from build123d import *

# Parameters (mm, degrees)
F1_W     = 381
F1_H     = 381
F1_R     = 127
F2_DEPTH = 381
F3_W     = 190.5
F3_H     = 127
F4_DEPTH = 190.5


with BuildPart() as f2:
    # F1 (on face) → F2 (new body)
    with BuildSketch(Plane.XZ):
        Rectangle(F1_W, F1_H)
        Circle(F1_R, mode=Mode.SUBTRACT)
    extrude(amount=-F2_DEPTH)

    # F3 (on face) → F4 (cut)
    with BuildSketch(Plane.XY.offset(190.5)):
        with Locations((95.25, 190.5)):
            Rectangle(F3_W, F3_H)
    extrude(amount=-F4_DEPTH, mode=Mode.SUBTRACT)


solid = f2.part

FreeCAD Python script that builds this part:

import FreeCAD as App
import Part
import Sketcher
Q = App.Units.Quantity

doc = App.newDocument("Part")
body = doc.addObject("PartDesign::Body", "Body")

sketch1 = body.newObject("Sketcher::SketchObject", "Sketch")
sketch1.AttachmentSupport = (doc.getObject("XZ_Plane"), [""])
sketch1.MapMode = "FlatFace"
sketch1.addGeometry([
    Part.LineSegment(App.Vector(-190, 190, 0), App.Vector(-190, -190, 0)),
    Part.LineSegment(App.Vector(-190, -190, 0), App.Vector(190, -190, 0)),
    Part.LineSegment(App.Vector(190, -190, 0), App.Vector(190, 190, 0)),
    Part.LineSegment(App.Vector(190, 190, 0), App.Vector(-190, 190, 0)),
    Part.Circle(App.Vector(0, 0, 0), App.Vector(0, 0, 1), 127),
], False)
sketch1.addConstraint([
    Sketcher.Constraint("Coincident", 0, 2, 1, 1),
    Sketcher.Constraint("Coincident", 1, 2, 2, 1),
    Sketcher.Constraint("Coincident", 2, 2, 3, 1),
    Sketcher.Constraint("Coincident", 3, 2, 0, 1),
    Sketcher.Constraint("Vertical", 0),
    Sketcher.Constraint("Horizontal", 1),
    Sketcher.Constraint("Vertical", 2),
    Sketcher.Constraint("Horizontal", 3),
    Sketcher.Constraint("Coincident", 4, 3, -1, 1),
    Sketcher.Constraint("Symmetric", 0, 2, 2, 2, -1, 1),
    Sketcher.Constraint("Equal", 3, 0),
    Sketcher.Constraint("Diameter", 4, Q("10 in")),
    Sketcher.Constraint("DistanceX", 1, 1, 1, 2, Q("15 in")),
])
pad1 = body.newObject("PartDesign::Pad", "Pad")
pad1.Profile = sketch1
pad1.Length = Q("15 in")
pad1.Reversed = True

sketch2 = body.newObject("Sketcher::SketchObject", "Sketch001")
sketch2.AttachmentSupport = (doc.getObject("XY_Plane"), [""])
sketch2.MapMode = "FlatFace"
sketch2.AttachmentOffset = App.Placement(App.Vector(0, 0, 7.5 * 25.4), App.Rotation())
sketch2.addGeometry([
    Part.LineSegment(App.Vector(0, 254, 0), App.Vector(0, 127, 0)),
    Part.LineSegment(App.Vector(0, 127, 0), App.Vector(190, 127, 0)),
    Part.LineSegment(App.Vector(190, 127, 0), App.Vector(190, 254, 0)),
    Part.LineSegment(App.Vector(190, 254, 0), App.Vector(0, 254, 0)),
], False)
sketch2.addConstraint([
    Sketcher.Constraint("Coincident", 0, 2, 1, 1),
    Sketcher.Constraint("Coincident", 1, 2, 2, 1),
    Sketcher.Constraint("Coincident", 2, 2, 3, 1),
    Sketcher.Constraint("Coincident", 3, 2, 0, 1),
    Sketcher.Constraint("Vertical", 0),
    Sketcher.Constraint("Horizontal", 1),
    Sketcher.Constraint("Vertical", 2),
    Sketcher.Constraint("Horizontal", 3),
    Sketcher.Constraint("PointOnObject", 0, 2, -2),
    Sketcher.Constraint("DistanceY", 0, 2, 0, 1, Q("5 in")),
    Sketcher.Constraint("DistanceX", 1, 1, 1, 2, Q("7.5 in")),
    Sketcher.Constraint("DistanceY", -1, 1, 0, 2, Q("5 in")),
])
pocket1 = body.newObject("PartDesign::Pocket", "Pocket")
pocket1.Profile = sketch2
pocket1.Length = Q("7.5 in")

doc.recompute()
